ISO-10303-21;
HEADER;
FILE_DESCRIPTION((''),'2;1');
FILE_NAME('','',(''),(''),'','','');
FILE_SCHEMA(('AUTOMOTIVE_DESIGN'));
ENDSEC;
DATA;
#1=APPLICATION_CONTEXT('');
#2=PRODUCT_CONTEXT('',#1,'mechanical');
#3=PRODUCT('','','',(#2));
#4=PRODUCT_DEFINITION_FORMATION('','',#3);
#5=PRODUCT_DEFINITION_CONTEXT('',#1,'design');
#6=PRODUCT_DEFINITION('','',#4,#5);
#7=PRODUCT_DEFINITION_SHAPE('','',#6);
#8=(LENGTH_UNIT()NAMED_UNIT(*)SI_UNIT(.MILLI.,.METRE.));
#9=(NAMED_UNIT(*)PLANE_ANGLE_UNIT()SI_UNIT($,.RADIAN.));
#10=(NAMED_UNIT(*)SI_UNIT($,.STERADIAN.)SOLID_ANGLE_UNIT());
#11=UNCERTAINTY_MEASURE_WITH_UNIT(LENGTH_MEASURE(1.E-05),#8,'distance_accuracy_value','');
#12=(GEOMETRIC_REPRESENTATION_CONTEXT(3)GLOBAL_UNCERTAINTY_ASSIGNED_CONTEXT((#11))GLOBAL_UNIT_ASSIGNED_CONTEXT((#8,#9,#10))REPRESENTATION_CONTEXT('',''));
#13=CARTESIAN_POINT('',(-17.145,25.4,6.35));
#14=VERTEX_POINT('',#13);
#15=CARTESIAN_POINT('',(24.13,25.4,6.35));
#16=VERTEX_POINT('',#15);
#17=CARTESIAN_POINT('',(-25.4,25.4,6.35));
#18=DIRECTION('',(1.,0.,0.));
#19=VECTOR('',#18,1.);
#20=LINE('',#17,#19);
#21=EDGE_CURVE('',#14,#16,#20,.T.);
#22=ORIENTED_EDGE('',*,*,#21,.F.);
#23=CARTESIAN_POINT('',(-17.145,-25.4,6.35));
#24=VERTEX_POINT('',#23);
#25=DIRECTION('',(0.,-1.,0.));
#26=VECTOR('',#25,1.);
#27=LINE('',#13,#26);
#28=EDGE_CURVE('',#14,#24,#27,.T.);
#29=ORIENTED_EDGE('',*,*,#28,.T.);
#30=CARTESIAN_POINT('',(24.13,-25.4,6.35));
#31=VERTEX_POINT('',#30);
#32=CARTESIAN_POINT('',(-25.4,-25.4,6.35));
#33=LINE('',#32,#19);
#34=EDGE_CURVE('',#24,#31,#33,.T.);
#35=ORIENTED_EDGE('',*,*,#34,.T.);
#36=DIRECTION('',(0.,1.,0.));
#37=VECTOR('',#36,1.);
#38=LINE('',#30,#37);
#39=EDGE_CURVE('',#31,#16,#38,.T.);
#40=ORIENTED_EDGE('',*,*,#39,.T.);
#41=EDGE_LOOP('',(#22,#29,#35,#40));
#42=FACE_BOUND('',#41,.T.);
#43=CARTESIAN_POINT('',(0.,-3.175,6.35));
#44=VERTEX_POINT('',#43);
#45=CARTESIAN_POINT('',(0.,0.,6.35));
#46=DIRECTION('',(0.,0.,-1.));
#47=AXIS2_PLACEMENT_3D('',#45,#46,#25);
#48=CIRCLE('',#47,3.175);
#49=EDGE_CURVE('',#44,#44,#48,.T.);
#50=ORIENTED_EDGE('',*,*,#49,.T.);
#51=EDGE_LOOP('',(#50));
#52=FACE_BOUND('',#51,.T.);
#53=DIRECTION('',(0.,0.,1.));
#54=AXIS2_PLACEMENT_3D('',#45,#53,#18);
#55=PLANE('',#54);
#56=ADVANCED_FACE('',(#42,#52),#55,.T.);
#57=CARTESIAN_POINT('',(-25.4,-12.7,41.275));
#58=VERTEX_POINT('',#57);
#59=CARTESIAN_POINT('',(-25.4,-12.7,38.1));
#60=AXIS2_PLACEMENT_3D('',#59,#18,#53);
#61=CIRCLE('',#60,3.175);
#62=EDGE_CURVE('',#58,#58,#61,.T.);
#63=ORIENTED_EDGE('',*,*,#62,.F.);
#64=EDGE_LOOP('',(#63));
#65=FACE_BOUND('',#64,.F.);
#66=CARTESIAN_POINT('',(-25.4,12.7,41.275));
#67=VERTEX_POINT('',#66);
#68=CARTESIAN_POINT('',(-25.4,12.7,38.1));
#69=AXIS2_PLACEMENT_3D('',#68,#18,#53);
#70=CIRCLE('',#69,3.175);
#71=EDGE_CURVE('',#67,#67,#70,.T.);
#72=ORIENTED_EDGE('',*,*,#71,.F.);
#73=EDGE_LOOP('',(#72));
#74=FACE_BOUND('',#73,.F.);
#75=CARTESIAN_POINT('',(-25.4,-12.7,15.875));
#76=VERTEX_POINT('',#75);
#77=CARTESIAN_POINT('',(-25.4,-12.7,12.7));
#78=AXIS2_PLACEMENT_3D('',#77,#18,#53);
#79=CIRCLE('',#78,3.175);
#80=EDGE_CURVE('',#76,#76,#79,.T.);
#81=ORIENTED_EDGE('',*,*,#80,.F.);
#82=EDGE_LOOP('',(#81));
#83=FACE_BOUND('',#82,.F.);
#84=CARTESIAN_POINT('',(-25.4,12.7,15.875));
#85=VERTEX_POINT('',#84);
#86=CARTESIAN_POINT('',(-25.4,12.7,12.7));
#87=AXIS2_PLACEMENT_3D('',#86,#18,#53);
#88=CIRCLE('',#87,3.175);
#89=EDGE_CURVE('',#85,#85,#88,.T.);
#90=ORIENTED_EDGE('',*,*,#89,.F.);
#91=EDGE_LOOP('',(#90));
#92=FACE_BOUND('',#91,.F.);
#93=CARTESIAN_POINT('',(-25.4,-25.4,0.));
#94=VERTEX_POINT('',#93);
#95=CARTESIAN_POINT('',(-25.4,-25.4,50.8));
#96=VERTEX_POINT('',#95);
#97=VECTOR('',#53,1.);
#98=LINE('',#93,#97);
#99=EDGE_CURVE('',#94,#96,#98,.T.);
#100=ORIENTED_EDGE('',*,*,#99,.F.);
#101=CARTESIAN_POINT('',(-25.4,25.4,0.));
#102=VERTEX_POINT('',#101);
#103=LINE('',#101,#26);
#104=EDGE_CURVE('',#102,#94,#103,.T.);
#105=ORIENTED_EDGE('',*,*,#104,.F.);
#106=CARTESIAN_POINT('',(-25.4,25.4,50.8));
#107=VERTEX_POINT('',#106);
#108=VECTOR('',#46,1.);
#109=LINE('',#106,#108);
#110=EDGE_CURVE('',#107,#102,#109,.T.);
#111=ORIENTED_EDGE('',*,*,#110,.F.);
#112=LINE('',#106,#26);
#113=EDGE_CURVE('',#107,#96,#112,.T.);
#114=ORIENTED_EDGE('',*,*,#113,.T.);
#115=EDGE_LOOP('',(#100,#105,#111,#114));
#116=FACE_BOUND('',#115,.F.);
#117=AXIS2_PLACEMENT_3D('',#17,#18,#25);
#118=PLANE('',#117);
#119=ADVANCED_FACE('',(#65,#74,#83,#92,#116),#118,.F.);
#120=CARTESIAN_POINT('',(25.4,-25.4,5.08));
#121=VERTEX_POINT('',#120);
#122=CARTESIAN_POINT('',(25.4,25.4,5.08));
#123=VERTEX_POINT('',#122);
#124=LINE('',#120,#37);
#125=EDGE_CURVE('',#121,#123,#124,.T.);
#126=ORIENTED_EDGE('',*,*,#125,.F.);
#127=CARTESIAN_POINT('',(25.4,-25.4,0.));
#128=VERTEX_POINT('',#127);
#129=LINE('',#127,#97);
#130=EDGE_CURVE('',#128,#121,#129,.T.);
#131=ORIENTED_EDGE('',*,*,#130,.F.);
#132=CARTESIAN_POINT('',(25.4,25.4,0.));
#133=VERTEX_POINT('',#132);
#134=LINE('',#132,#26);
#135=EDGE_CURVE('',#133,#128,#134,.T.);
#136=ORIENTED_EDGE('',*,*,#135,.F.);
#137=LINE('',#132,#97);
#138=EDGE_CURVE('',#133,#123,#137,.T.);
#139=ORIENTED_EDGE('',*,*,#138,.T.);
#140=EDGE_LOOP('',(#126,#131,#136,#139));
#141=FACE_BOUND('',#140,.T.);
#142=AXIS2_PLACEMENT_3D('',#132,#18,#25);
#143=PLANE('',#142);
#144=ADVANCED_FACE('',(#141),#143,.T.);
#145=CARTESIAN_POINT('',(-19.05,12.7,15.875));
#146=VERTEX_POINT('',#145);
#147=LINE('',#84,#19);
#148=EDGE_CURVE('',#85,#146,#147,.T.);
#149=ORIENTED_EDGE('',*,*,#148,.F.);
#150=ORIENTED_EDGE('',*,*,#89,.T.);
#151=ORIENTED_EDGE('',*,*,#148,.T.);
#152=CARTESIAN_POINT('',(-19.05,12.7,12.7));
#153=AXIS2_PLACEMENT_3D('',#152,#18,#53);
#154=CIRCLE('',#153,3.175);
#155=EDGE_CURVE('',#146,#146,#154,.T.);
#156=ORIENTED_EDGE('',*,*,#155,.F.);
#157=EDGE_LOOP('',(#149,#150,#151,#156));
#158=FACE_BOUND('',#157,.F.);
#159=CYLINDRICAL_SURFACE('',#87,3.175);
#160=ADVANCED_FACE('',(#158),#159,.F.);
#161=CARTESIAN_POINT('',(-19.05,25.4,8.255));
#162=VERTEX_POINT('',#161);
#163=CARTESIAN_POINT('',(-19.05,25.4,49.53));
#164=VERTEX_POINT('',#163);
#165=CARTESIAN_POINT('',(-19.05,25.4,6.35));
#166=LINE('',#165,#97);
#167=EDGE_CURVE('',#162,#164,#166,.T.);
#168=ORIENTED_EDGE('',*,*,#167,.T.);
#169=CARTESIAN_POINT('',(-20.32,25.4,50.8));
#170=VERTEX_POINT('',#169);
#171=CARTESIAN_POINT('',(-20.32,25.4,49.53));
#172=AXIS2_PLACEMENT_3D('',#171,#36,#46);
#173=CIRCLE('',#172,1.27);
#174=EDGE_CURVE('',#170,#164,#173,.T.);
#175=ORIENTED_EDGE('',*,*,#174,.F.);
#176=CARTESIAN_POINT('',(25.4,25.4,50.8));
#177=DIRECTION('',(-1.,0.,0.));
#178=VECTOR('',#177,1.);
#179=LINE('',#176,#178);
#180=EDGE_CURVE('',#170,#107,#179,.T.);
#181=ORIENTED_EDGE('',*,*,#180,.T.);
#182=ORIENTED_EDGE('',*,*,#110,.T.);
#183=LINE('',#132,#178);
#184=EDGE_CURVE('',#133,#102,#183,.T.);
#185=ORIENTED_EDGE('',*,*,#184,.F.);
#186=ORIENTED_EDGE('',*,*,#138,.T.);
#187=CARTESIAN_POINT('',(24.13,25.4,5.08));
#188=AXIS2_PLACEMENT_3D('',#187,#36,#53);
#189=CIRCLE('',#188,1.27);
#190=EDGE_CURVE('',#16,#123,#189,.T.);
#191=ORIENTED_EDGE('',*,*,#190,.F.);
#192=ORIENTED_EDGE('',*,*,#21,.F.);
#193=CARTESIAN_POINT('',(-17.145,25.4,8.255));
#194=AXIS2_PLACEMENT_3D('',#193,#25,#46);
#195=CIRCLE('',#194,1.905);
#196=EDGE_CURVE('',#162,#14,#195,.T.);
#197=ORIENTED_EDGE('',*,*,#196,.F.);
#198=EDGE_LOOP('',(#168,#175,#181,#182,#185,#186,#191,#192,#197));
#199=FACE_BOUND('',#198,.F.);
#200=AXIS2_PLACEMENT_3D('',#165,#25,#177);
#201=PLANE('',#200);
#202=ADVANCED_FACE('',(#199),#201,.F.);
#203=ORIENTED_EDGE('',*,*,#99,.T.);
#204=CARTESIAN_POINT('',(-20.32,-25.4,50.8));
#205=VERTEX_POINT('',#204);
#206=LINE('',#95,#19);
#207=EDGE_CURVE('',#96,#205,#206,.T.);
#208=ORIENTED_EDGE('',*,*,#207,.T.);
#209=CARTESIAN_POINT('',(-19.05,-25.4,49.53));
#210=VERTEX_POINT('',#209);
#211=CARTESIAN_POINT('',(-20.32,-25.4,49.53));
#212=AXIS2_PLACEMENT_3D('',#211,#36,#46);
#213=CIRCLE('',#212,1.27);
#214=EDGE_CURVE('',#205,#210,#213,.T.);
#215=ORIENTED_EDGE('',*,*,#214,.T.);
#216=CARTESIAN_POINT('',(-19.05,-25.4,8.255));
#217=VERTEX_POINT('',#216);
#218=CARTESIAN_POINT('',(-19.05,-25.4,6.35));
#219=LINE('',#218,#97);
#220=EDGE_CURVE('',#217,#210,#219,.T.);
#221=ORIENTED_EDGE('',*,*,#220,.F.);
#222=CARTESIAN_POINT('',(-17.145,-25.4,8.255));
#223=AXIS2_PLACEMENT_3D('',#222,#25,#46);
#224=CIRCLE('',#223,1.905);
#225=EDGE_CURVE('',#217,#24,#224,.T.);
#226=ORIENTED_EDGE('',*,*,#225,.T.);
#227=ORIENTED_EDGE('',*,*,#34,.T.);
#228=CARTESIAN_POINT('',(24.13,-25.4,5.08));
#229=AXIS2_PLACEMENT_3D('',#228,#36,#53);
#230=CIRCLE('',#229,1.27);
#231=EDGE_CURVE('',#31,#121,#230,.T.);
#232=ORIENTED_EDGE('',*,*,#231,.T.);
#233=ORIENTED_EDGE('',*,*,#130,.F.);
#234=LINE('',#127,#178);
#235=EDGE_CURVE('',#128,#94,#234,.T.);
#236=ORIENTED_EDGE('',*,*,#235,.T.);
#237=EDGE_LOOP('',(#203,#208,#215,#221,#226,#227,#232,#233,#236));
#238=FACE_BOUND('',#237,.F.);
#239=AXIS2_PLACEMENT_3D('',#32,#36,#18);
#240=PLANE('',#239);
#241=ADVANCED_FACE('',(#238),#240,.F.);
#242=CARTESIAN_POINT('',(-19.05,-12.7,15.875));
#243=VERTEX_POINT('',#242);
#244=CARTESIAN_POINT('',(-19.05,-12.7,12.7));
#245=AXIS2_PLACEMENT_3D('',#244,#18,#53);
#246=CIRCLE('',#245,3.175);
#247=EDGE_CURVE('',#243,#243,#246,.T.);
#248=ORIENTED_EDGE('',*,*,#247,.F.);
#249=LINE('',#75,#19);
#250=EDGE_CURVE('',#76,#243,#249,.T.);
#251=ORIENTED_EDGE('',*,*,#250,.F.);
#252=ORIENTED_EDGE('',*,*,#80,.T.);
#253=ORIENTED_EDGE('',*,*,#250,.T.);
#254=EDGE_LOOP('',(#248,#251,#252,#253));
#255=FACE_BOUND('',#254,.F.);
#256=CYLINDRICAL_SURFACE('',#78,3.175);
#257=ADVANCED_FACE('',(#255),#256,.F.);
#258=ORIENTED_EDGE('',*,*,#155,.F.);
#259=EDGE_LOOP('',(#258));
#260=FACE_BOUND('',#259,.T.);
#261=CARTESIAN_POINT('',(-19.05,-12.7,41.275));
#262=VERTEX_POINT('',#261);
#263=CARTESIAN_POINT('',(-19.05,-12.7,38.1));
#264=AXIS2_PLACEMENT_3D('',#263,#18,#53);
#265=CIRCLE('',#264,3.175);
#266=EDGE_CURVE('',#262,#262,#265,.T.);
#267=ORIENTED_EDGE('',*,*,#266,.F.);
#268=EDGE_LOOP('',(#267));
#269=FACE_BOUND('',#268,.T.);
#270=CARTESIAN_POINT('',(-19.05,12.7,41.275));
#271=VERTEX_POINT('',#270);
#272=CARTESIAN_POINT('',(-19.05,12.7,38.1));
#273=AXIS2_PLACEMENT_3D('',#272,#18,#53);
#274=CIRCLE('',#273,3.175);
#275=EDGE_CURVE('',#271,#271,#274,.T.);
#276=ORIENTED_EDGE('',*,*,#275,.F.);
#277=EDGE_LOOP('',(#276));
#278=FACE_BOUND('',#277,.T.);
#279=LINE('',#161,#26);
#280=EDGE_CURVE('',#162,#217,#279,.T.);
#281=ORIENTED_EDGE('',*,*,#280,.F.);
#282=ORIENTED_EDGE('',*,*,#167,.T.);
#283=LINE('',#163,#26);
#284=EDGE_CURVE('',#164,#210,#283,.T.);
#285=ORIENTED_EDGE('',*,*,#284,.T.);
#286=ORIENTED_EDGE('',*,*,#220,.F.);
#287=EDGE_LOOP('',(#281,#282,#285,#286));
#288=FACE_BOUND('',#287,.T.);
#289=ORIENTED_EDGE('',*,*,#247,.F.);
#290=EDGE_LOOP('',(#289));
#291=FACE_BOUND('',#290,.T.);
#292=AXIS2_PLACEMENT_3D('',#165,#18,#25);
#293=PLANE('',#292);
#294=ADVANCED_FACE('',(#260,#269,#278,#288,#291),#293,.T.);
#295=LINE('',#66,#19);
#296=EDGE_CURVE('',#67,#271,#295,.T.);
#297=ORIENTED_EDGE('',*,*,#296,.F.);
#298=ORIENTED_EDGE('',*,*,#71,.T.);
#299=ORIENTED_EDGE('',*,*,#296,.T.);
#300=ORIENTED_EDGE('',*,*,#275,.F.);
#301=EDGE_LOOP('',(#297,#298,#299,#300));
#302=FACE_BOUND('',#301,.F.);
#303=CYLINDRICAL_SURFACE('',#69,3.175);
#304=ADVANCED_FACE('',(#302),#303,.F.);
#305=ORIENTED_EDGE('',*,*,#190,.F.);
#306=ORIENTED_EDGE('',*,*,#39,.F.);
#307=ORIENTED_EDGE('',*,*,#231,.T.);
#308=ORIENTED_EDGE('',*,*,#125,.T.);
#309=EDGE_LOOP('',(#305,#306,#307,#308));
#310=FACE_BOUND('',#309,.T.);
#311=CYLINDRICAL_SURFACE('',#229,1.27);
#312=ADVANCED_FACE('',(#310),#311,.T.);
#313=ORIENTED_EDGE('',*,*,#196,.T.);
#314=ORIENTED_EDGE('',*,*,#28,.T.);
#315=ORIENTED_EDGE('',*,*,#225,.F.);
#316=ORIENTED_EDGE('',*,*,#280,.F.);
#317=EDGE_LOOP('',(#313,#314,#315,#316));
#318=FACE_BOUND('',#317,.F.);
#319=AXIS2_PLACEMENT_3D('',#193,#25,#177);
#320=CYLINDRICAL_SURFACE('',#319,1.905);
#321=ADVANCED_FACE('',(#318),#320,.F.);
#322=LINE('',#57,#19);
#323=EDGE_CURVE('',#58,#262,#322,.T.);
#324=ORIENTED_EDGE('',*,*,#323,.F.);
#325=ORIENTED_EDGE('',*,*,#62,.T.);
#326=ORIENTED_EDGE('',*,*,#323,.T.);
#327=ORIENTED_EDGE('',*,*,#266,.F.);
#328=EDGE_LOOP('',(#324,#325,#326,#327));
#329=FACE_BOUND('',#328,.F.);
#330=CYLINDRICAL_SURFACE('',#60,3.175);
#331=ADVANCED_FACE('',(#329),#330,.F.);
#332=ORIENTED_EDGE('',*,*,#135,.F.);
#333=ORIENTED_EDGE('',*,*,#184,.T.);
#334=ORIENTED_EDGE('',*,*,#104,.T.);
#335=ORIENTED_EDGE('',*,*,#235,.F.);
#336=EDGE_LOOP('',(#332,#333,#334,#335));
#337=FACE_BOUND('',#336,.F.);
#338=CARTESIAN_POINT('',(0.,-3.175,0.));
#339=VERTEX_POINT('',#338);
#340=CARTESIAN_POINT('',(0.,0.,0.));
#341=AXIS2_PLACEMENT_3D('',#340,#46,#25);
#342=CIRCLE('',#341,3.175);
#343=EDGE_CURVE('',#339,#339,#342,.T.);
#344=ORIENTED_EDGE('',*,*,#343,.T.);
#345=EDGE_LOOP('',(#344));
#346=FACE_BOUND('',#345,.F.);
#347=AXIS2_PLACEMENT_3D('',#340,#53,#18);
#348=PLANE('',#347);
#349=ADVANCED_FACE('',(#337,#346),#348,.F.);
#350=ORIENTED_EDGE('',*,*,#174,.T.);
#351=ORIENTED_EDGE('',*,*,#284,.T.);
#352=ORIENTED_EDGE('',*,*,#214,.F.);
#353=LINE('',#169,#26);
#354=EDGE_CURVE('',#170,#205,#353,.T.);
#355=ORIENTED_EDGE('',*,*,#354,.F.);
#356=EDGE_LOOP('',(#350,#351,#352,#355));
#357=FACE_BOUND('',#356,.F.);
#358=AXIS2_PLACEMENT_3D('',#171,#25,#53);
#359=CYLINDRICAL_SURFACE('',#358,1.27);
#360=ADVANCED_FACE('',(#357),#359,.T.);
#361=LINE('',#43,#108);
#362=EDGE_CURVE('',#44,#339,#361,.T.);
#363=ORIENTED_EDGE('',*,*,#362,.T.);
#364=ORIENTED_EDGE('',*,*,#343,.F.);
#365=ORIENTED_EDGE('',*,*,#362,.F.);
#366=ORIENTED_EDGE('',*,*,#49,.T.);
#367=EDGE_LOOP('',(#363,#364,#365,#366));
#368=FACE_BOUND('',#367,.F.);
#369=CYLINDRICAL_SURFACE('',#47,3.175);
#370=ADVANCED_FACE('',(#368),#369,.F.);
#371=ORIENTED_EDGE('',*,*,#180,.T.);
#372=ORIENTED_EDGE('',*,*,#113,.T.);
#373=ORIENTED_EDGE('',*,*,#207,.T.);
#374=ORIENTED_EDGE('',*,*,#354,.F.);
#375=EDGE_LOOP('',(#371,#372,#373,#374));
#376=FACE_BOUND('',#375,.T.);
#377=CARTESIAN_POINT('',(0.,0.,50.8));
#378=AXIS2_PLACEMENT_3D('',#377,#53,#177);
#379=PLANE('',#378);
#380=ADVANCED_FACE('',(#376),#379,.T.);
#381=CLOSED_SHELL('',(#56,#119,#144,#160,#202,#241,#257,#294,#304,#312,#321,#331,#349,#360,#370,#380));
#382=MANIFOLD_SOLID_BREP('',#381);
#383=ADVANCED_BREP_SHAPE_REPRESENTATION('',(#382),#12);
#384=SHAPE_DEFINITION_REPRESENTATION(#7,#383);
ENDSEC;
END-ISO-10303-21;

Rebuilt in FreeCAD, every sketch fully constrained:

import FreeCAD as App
import Part
import Sketcher

V = App.Vector
Q = App.Units.Quantity


def edges_at(feature, points):
    """Names of the edges that pass closest to the given points."""
    edges = feature.Shape.Edges
    near = lambda p: min(range(len(edges)), key=lambda i: edges[i].distToShape(Part.Vertex(*p))[0])
    return sorted({f"Edge{near(p) + 1}" for p in points})

doc = App.newDocument("Part")
body = doc.addObject("PartDesign::Body", "Body")

# Sketch on XY plane
sketch1 = doc.addObject("Sketcher::SketchObject", "Sketch")
body.addObject(sketch1)
sketch1.AttachmentSupport = (doc.XY_Plane, [""])
sketch1.MapMode = "FlatFace"
sketch1.addGeometry(Part.LineSegment(V(-25, 25, 0), V(-25, -25, 0)), False)
sketch1.addGeometry(Part.LineSegment(V(-25, -25, 0), V(25, -25, 0)), False)
sketch1.addGeometry(Part.LineSegment(V(25, -25, 0), V(25, 25, 0)), False)
sketch1.addGeometry(Part.LineSegment(V(25, 25, 0), V(-25, 25, 0)), False)
sketch1.addConstraint(Sketcher.Constraint("Coincident", 0, 2, 1, 1))
sketch1.addConstraint(Sketcher.Constraint("Coincident", 1, 2, 2, 1))
sketch1.addConstraint(Sketcher.Constraint("Coincident", 2, 2, 3, 1))
sketch1.addConstraint(Sketcher.Constraint("Coincident", 3, 2, 0, 1))
sketch1.addConstraint(Sketcher.Constraint("Vertical", 0))
sketch1.addConstraint(Sketcher.Constraint("Horizontal", 1))
sketch1.addConstraint(Sketcher.Constraint("Vertical", 2))
sketch1.addConstraint(Sketcher.Constraint("Horizontal", 3))
sketch1.addConstraint(Sketcher.Constraint("Symmetric", 0, 2, 2, 2, -1, 1))
sketch1.addConstraint(Sketcher.Constraint("Equal", 3, 0))
sketch1.addConstraint(Sketcher.Constraint("DistanceX", 1, 1, 1, 2, Q("2 in")))
pad1 = doc.addObject("PartDesign::Pad", "Pad")
body.addObject(pad1)
pad1.Profile = sketch1
pad1.Length = Q("0.25 in")

# Sketch on XY plane
sketch2 = doc.addObject("Sketcher::SketchObject", "Sketch001")
body.addObject(sketch2)
sketch2.AttachmentSupport = (doc.XY_Plane, [""])
sketch2.MapMode = "FlatFace"
sketch2.AttachmentOffset = App.Placement(V(0, 0, 0.25 * 25.4), App.Rotation())
sketch2.addGeometry(Part.Circle(V(0, 0, 0), V(0, 0, 1), 3.2), False)
sketch2.addConstraint(Sketcher.Constraint("Coincident", 0, 3, -1, 1))
sketch2.addConstraint(Sketcher.Constraint("Diameter", 0, Q("0.25 in")))
doc.recompute()
hole = doc.addObject("PartDesign::Hole", "Hole")
body.addObject(hole)
hole.Profile = sketch2
hole.ThreadType = "None"
hole.Diameter = Q("0.25 in")
hole.DepthType = "Dimension"
hole.Depth = Q("0.25 in")
hole.DrillPoint = "Angled"
hole.DrillPointAngle = 118

# Sketch on XY plane
sketch3 = doc.addObject("Sketcher::SketchObject", "Sketch002")
body.addObject(sketch3)
sketch3.AttachmentSupport = (doc.XY_Plane, [""])
sketch3.MapMode = "FlatFace"
sketch3.AttachmentOffset = App.Placement(V(0, 0, 0.25 * 25.4), App.Rotation())
sketch3.addGeometry(Part.LineSegment(V(-25, 25, 0), V(-25, -25, 0)), False)
sketch3.addGeometry(Part.LineSegment(V(-25, -25, 0), V(-19, -25, 0)), False)
sketch3.addGeometry(Part.LineSegment(V(-19, -25, 0), V(-19, 25, 0)), False)
sketch3.addGeometry(Part.LineSegment(V(-19, 25, 0), V(-25, 25, 0)), False)
sketch3.addConstraint(Sketcher.Constraint("Coincident", 0, 2, 1, 1))
sketch3.addConstraint(Sketcher.Constraint("Coincident", 1, 2, 2, 1))
sketch3.addConstraint(Sketcher.Constraint("Coincident", 2, 2, 3, 1))
sketch3.addConstraint(Sketcher.Constraint("Coincident", 3, 2, 0, 1))
sketch3.addConstraint(Sketcher.Constraint("Vertical", 0))
sketch3.addConstraint(Sketcher.Constraint("Horizontal", 1))
sketch3.addConstraint(Sketcher.Constraint("Vertical", 2))
sketch3.addConstraint(Sketcher.Constraint("Horizontal", 3))
sketch3.addConstraint(Sketcher.Constraint("DistanceX", 1, 1, 1, 2, Q("0.25 in")))
sketch3.addConstraint(Sketcher.Constraint("DistanceY", 0, 2, 0, 1, Q("2 in")))
sketch3.addConstraint(Sketcher.Constraint("DistanceX", 0, 2, -1, 1, Q("1 in")))
sketch3.addConstraint(Sketcher.Constraint("DistanceY", 0, 2, -1, 1, Q("1 in")))
pad2 = doc.addObject("PartDesign::Pad", "Pad001")
body.addObject(pad2)
pad2.Profile = sketch3
pad2.Length = Q("1.75 in")

# Sketch on YZ plane
sketch4 = doc.addObject("Sketcher::SketchObject", "Sketch003")
body.addObject(sketch4)
sketch4.AttachmentSupport = (doc.YZ_Plane, [""])
sketch4.MapMode = "FlatFace"
sketch4.AttachmentOffset = App.Placement(V(0, 0, -1 * 25.4), App.Rotation())
sketch4.addGeometry(Part.Circle(V(12.7, 38.1, 0), V(0, 0, 1), 3.2), False)
sketch4.addGeometry(Part.Circle(V(-12.7, 38.1, 0), V(0, 0, 1), 3.2), False)
sketch4.addGeometry(Part.Circle(V(-12.7, 12.7, 0), V(0, 0, 1), 3.2), False)
sketch4.addGeometry(Part.Circle(V(12.7, 12.7, 0), V(0, 0, 1), 3.2), False)
sketch4.addConstraint(Sketcher.Constraint("Equal", 0, 1))
sketch4.addConstraint(Sketcher.Constraint("Equal", 1, 2))
sketch4.addConstraint(Sketcher.Constraint("Equal", 2, 3))
sketch4.addConstraint(Sketcher.Constraint("Symmetric", 0, 3, 1, 3, -2))
sketch4.addConstraint(Sketcher.Constraint("Symmetric", 2, 3, 3, 3, -2))
sketch4.addConstraint(Sketcher.Constraint("Vertical", 1, 3, 2, 3))
sketch4.addConstraint(Sketcher.Constraint("Diameter", 0, Q("0.25 in")))
sketch4.addConstraint(Sketcher.Constraint("DistanceX", 1, 3, 0, 3, Q("1 in")))
sketch4.addConstraint(Sketcher.Constraint("DistanceY", 2, 3, 1, 3, Q("1 in")))
sketch4.addConstraint(Sketcher.Constraint("DistanceY", -1, 1, 0, 3, Q("1.5 in")))
doc.recompute()
hole2 = doc.addObject("PartDesign::Hole", "Hole001")
body.addObject(hole2)
hole2.Profile = sketch4
hole2.ThreadType = "None"
hole2.Diameter = Q("0.25 in")
hole2.DepthType = "Dimension"
hole2.Depth = Q("0.25 in")
hole2.DrillPoint = "Angled"
hole2.DrillPointAngle = 118
hole2.Reversed = True
doc.recompute()

fillet = doc.addObject("PartDesign::Fillet", "Fillet")
body.addObject(fillet)
fillet.Base = (hole2, edges_at(hole2, [(-19.05, 0, 50.8)]))
fillet.Radius = Q("0.05 in")
doc.recompute()

fillet2 = doc.addObject("PartDesign::Fillet", "Fillet001")
body.addObject(fillet2)
fillet2.Base = (fillet, edges_at(fillet, [(-19.05, 0, 6.35)]))
fillet2.Radius = Q("0.075 in")
doc.recompute()

fillet3 = doc.addObject("PartDesign::Fillet", "Fillet002")
body.addObject(fillet3)
fillet3.Base = (fillet2, edges_at(fillet2, [(25.4, 0, 6.35)]))
fillet3.Radius = Q("0.05 in")

doc.recompute()
